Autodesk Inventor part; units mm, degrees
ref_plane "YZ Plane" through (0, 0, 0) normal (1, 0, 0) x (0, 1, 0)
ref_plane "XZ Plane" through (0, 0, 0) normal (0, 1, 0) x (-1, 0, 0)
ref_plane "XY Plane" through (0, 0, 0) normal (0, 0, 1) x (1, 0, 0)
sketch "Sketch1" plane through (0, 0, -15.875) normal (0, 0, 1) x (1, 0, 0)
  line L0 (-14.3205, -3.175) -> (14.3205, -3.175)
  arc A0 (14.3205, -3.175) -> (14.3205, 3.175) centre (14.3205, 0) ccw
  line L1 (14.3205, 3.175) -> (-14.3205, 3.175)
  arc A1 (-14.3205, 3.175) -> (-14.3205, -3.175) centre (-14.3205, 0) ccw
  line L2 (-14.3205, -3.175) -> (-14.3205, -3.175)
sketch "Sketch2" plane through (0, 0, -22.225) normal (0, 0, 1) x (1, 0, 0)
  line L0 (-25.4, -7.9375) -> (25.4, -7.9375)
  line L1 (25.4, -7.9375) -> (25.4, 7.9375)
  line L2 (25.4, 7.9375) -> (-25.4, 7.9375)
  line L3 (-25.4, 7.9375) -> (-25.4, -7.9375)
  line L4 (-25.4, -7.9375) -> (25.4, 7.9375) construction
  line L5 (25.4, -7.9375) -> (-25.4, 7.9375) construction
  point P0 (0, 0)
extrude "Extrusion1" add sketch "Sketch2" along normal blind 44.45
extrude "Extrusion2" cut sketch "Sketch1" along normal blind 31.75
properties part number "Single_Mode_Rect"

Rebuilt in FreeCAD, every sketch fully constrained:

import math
import FreeCAD as App
import Part
import Sketcher
from FreeCAD import Vector
Q = App.Units.Quantity

doc = App.newDocument("Part")
params = doc.addObject("Spreadsheet::Sheet", "Params")
for row, (alias, value) in enumerate([
    ("sketch1_width", "2 in"),
    ("sketch1_height", "0.625 in"),
    ("pad1_length", "1.75 in"),
    ("sketch2_radius", "0.125 in"),
    ("pocket1_length", "1.25 in"),
], start=1):
    params.set(f"A{row}", alias)
    params.set(f"B{row}", "=" + value)
    params.setAlias(f"B{row}", alias)

body = doc.addObject("PartDesign::Body", "Body")

sketch1 = body.newObject("Sketcher::SketchObject", "Sketch")
sketch1.AttachmentSupport = (doc.getObject("XY_Plane"), [""])
sketch1.MapMode = "FlatFace"
sketch1.AttachmentOffset = App.Placement(Vector(0, 0, -0.875 * 25.4), App.Rotation())
sketch1.addGeometry(Part.LineSegment(Vector(-25, 8, 0), Vector(-25, -8, 0)), False)
sketch1.addGeometry(Part.LineSegment(Vector(-25, -8, 0), Vector(25, -8, 0)), False)
sketch1.addGeometry(Part.LineSegment(Vector(25, -8, 0), Vector(25, 8, 0)), False)
sketch1.addGeometry(Part.LineSegment(Vector(25, 8, 0), Vector(-25, 8, 0)), False)
sketch1.addConstraint(Sketcher.Constraint("Coincident", 0, 2, 1, 1))
sketch1.addConstraint(Sketcher.Constraint("Coincident", 1, 2, 2, 1))
sketch1.addConstraint(Sketcher.Constraint("Coincident", 2, 2, 3, 1))
sketch1.addConstraint(Sketcher.Constraint("Coincident", 3, 2, 0, 1))
sketch1.addConstraint(Sketcher.Constraint("Vertical", 0))
sketch1.addConstraint(Sketcher.Constraint("Horizontal", 1))
sketch1.addConstraint(Sketcher.Constraint("Vertical", 2))
sketch1.addConstraint(Sketcher.Constraint("Horizontal", 3))
sketch1.addConstraint(Sketcher.Constraint("Symmetric", 0, 2, 2, 2, -1, 1))
sketch1.addConstraint(Sketcher.Constraint("DistanceX", 1, 1, 1, 2, Q("2 in")))
sketch1.addConstraint(Sketcher.Constraint("DistanceY", 0, 2, 0, 1, Q("0.625 in")))
sketch1.setExpression("Constraints[9]", "Params.sketch1_width")
sketch1.setExpression("Constraints[10]", "Params.sketch1_height")
pad1 = body.newObject("PartDesign::Pad", "Pad")
pad1.Profile = sketch1
pad1.setExpression("Length", "Params.pad1_length")

sketch2 = body.newObject("Sketcher::SketchObject", "Sketch001")
sketch2.AttachmentSupport = (doc.getObject("XY_Plane"), [""])
sketch2.MapMode = "FlatFace"
sketch2.AttachmentOffset = App.Placement(Vector(0, 0, -0.625 * 25.4), App.Rotation())
sketch2.addGeometry(Part.ArcOfCircle(Part.Circle(Vector(-14.3, 0, 0), Vector(0, 0, 1), 3.2), math.radians(90), math.radians(270)), False)
sketch2.addGeometry(Part.LineSegment(Vector(-14.3, -3.2, 0), Vector(14.3, -3.2, 0)), False)
sketch2.addGeometry(Part.ArcOfCircle(Part.Circle(Vector(14.3, 0, 0), Vector(0, 0, 1), 3.2), math.radians(-90), math.radians(90)), False)
sketch2.addGeometry(Part.LineSegment(Vector(14.3, 3.2, 0), Vector(-14.3, 3.2, 0)), False)
sketch2.addConstraint(Sketcher.Constraint("Tangent", 0, 2, 1, 1))
sketch2.addConstraint(Sketcher.Constraint("Tangent", 1, 2, 2, 1))
sketch2.addConstraint(Sketcher.Constraint("Tangent", 2, 2, 3, 1))
sketch2.addConstraint(Sketcher.Constraint("Tangent", 3, 2, 0, 1))
sketch2.addConstraint(Sketcher.Constraint("Horizontal", 1))
sketch2.addConstraint(Sketcher.Constraint("Horizontal", 3))
sketch2.addConstraint(Sketcher.Constraint("Symmetric", 0, 3, 2, 3, -1, 1))
sketch2.addConstraint(Sketcher.Constraint("Radius", 0, Q("0.125 in")))
sketch2.addConstraint(Sketcher.Constraint("DistanceX", 1, 1, 1, 2, Q("1.1276 in")))
sketch2.setExpression("Constraints[7]", "Params.sketch2_radius")
pocket1 = body.newObject("PartDesign::Pocket", "Pocket")
pocket1.Profile = sketch2
pocket1.setExpression("Length", "Params.pocket1_length")
pocket1.Reversed = True

doc.recompute()
